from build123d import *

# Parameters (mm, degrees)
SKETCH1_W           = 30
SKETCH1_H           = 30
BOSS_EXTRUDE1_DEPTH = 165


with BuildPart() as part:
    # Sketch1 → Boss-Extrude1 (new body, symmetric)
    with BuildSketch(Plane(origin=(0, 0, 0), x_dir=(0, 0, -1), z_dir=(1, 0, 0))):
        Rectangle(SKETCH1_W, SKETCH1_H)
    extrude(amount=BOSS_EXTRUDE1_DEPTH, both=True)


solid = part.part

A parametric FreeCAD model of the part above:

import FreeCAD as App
import Part
import Sketcher
Q = App.Units.Quantity

doc = App.newDocument("Part")
params = doc.addObject("Spreadsheet::Sheet", "Params")
for row, (alias, value) in enumerate([
    ("sketch1_width", "30 mm"),
    ("pad1_length", "330 mm"),
], start=1):
    params.set(f"A{row}", alias)
    params.set(f"B{row}", "=" + value)
    params.setAlias(f"B{row}", alias)

body = doc.addObject("PartDesign::Body", "Body")

sketch1 = body.newObject("Sketcher::SketchObject", "Sketch")
sketch1.AttachmentSupport = (doc.getObject("YZ_Plane"), [""])
sketch1.MapMode = "FlatFace"
sketch1.addGeometry([
    Part.LineSegment(App.Vector(15, 15, 0), App.Vector(-15, 15, 0)),
    Part.LineSegment(App.Vector(-15, 15, 0), App.Vector(-15, -15, 0)),
    Part.LineSegment(App.Vector(-15, -15, 0), App.Vector(15, -15, 0)),
    Part.LineSegment(App.Vector(15, -15, 0), App.Vector(15, 15, 0)),
], False)
sketch1.addConstraint([
    Sketcher.Constraint("Coincident", 0, 2, 1, 1),
    Sketcher.Constraint("Coincident", 1, 2, 2, 1),
    Sketcher.Constraint("Coincident", 2, 2, 3, 1),
    Sketcher.Constraint("Coincident", 3, 2, 0, 1),
    Sketcher.Constraint("Horizontal", 0),
    Sketcher.Constraint("Vertical", 1),
    Sketcher.Constraint("Horizontal", 2),
    Sketcher.Constraint("Vertical", 3),
    Sketcher.Constraint("Symmetric", 0, 2, 2, 2, -1, 1),
    Sketcher.Constraint("Equal", 2, 1),
    Sketcher.Constraint("DistanceX", 0, 2, 0, 1, Q("30 mm")),
])
sketch1.setExpression("Constraints[10]", "Params.sketch1_width")
pad1 = body.newObject("PartDesign::Pad", "Pad")
pad1.Profile = sketch1
pad1.setExpression("Length", "Params.pad1_length")
pad1.Midplane = True

doc.recompute()
